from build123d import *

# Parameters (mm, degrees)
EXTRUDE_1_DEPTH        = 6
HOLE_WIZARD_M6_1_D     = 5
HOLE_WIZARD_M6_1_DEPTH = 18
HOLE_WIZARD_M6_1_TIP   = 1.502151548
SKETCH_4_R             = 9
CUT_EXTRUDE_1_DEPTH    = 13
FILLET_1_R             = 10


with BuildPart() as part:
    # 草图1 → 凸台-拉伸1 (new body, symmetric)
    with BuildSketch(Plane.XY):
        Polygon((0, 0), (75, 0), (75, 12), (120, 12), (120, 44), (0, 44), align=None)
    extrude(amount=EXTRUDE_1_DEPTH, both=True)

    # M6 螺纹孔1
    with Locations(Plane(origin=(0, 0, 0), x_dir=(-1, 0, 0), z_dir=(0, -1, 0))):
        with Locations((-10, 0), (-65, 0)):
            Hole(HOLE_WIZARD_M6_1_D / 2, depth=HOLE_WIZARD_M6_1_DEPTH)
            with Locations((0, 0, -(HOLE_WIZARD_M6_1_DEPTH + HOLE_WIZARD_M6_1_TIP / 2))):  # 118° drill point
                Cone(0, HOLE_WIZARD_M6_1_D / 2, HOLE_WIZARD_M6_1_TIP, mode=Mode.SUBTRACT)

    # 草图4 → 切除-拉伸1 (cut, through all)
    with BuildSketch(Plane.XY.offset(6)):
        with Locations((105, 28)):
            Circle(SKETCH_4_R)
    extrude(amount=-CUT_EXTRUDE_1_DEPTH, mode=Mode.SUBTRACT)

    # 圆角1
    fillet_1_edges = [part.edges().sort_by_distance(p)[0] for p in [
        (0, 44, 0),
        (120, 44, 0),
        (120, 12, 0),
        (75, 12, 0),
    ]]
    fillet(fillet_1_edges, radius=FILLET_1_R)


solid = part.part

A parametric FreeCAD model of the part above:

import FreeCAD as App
import Part
import Sketcher
Q = App.Units.Quantity


def edges_at(feature, points):
    """Names of the edges that pass closest to the given points."""
    edges = feature.Shape.Edges
    near = lambda p: min(range(len(edges)), key=lambda i: edges[i].distToShape(Part.Vertex(*p))[0])
    return sorted({f"Edge{near(p) + 1}" for p in points})


def add_polygon(sketch, points):
    """Adds a closed chain of lines whose ends are joined by coincident constraints."""
    first, n = sketch.GeometryCount, len(points)
    for a, b in zip(points, points[1:] + points[:1]):
        sketch.addGeometry(Part.LineSegment(App.Vector(*a, 0), App.Vector(*b, 0)), False)
    for i in range(n):
        sketch.addConstraint(Sketcher.Constraint("Coincident", first + i, 2, first + (i + 1) % n, 1))

doc = App.newDocument("Part")
body = doc.addObject("PartDesign::Body", "Body")

# Sketch on XY plane
sketch1 = body.newObject("Sketcher::SketchObject", "Sketch")
sketch1.AttachmentSupport = (doc.getObject("XY_Plane"), [""])
sketch1.MapMode = "FlatFace"
add_polygon(sketch1, [(0, 0), (75, 0), (75, 12), (120, 12), (120, 44), (0, 44)])  # lines 0-5
sketch1.addConstraint(Sketcher.Constraint("Horizontal", 0))
sketch1.addConstraint(Sketcher.Constraint("Vertical", 1))
sketch1.addConstraint(Sketcher.Constraint("Horizontal", 2))
sketch1.addConstraint(Sketcher.Constraint("Vertical", 3))
sketch1.addConstraint(Sketcher.Constraint("Horizontal", 4))
sketch1.addConstraint(Sketcher.Constraint("Vertical", 5))
sketch1.addConstraint(Sketcher.Constraint("Coincident", 5, 2, -1, 1))
sketch1.addConstraint(Sketcher.Constraint("DistanceX", 0, 1, 0, 2, Q("75 mm")))
sketch1.addConstraint(Sketcher.Constraint("DistanceX", 2, 1, 2, 2, Q("45 mm")))
sketch1.addConstraint(Sketcher.Constraint("DistanceY", 1, 1, 1, 2, Q("12 mm")))
sketch1.addConstraint(Sketcher.Constraint("DistanceY", 3, 1, 3, 2, Q("32 mm")))
pad1 = body.newObject("PartDesign::Pad", "Pad")
pad1.Profile = sketch1
pad1.Length = 12
pad1.Midplane = True

# Sketch on XZ plane
sketch2 = body.newObject("Sketcher::SketchObject", "Sketch001")
sketch2.AttachmentSupport = (doc.getObject("XZ_Plane"), [""])
sketch2.MapMode = "FlatFace"
sketch2.addGeometry(Part.Circle(App.Vector(10, 0, 0), App.Vector(0, 0, 1), 2.5), False)
sketch2.addGeometry(Part.Circle(App.Vector(65, 0, 0), App.Vector(0, 0, 1), 2.5), False)
sketch2.addConstraint(Sketcher.Constraint("Equal", 0, 1))
sketch2.addConstraint(Sketcher.Constraint("PointOnObject", 0, 3, -1))
sketch2.addConstraint(Sketcher.Constraint("PointOnObject", 1, 3, -1))
sketch2.addConstraint(Sketcher.Constraint("Diameter", 0, Q("5 mm")))
sketch2.addConstraint(Sketcher.Constraint("DistanceX", -1, 1, 0, 3, Q("10 mm")))
sketch2.addConstraint(Sketcher.Constraint("DistanceX", -1, 1, 1, 3, Q("65 mm")))
doc.recompute()
hole = body.newObject("PartDesign::Hole", "Hole")
hole.Profile = sketch2
hole.ThreadType = "None"
hole.Diameter = 5
hole.DepthType = "Dimension"
hole.Depth = 18
hole.DrillPoint = "Angled"
hole.DrillPointAngle = 118

# Sketch on XY plane
sketch3 = body.newObject("Sketcher::SketchObject", "Sketch002")
sketch3.AttachmentSupport = (doc.getObject("XY_Plane"), [""])
sketch3.MapMode = "FlatFace"
sketch3.AttachmentOffset = App.Placement(App.Vector(0, 0, 6), App.Rotation())
sketch3.addGeometry(Part.Circle(App.Vector(105, 28, 0), App.Vector(0, 0, 1), 9), False)
sketch3.addConstraint(Sketcher.Constraint("Diameter", 0, Q("18 mm")))
sketch3.addConstraint(Sketcher.Constraint("DistanceX", -1, 1, 0, 3, Q("105 mm")))
sketch3.addConstraint(Sketcher.Constraint("DistanceY", -1, 1, 0, 3, Q("28 mm")))
pocket1 = body.newObject("PartDesign::Pocket", "Pocket")
pocket1.Profile = sketch3
pocket1.Type = "ThroughAll"
doc.recompute()

fillet = body.newObject("PartDesign::Fillet", "Fillet")
fillet.Base = (pocket1, edges_at(pocket1, [
    (0, 44, 0),
    (120, 44, 0),
    (120, 12, 0),
    (75, 12, 0),
]))
fillet.Radius = 10

doc.recompute()
